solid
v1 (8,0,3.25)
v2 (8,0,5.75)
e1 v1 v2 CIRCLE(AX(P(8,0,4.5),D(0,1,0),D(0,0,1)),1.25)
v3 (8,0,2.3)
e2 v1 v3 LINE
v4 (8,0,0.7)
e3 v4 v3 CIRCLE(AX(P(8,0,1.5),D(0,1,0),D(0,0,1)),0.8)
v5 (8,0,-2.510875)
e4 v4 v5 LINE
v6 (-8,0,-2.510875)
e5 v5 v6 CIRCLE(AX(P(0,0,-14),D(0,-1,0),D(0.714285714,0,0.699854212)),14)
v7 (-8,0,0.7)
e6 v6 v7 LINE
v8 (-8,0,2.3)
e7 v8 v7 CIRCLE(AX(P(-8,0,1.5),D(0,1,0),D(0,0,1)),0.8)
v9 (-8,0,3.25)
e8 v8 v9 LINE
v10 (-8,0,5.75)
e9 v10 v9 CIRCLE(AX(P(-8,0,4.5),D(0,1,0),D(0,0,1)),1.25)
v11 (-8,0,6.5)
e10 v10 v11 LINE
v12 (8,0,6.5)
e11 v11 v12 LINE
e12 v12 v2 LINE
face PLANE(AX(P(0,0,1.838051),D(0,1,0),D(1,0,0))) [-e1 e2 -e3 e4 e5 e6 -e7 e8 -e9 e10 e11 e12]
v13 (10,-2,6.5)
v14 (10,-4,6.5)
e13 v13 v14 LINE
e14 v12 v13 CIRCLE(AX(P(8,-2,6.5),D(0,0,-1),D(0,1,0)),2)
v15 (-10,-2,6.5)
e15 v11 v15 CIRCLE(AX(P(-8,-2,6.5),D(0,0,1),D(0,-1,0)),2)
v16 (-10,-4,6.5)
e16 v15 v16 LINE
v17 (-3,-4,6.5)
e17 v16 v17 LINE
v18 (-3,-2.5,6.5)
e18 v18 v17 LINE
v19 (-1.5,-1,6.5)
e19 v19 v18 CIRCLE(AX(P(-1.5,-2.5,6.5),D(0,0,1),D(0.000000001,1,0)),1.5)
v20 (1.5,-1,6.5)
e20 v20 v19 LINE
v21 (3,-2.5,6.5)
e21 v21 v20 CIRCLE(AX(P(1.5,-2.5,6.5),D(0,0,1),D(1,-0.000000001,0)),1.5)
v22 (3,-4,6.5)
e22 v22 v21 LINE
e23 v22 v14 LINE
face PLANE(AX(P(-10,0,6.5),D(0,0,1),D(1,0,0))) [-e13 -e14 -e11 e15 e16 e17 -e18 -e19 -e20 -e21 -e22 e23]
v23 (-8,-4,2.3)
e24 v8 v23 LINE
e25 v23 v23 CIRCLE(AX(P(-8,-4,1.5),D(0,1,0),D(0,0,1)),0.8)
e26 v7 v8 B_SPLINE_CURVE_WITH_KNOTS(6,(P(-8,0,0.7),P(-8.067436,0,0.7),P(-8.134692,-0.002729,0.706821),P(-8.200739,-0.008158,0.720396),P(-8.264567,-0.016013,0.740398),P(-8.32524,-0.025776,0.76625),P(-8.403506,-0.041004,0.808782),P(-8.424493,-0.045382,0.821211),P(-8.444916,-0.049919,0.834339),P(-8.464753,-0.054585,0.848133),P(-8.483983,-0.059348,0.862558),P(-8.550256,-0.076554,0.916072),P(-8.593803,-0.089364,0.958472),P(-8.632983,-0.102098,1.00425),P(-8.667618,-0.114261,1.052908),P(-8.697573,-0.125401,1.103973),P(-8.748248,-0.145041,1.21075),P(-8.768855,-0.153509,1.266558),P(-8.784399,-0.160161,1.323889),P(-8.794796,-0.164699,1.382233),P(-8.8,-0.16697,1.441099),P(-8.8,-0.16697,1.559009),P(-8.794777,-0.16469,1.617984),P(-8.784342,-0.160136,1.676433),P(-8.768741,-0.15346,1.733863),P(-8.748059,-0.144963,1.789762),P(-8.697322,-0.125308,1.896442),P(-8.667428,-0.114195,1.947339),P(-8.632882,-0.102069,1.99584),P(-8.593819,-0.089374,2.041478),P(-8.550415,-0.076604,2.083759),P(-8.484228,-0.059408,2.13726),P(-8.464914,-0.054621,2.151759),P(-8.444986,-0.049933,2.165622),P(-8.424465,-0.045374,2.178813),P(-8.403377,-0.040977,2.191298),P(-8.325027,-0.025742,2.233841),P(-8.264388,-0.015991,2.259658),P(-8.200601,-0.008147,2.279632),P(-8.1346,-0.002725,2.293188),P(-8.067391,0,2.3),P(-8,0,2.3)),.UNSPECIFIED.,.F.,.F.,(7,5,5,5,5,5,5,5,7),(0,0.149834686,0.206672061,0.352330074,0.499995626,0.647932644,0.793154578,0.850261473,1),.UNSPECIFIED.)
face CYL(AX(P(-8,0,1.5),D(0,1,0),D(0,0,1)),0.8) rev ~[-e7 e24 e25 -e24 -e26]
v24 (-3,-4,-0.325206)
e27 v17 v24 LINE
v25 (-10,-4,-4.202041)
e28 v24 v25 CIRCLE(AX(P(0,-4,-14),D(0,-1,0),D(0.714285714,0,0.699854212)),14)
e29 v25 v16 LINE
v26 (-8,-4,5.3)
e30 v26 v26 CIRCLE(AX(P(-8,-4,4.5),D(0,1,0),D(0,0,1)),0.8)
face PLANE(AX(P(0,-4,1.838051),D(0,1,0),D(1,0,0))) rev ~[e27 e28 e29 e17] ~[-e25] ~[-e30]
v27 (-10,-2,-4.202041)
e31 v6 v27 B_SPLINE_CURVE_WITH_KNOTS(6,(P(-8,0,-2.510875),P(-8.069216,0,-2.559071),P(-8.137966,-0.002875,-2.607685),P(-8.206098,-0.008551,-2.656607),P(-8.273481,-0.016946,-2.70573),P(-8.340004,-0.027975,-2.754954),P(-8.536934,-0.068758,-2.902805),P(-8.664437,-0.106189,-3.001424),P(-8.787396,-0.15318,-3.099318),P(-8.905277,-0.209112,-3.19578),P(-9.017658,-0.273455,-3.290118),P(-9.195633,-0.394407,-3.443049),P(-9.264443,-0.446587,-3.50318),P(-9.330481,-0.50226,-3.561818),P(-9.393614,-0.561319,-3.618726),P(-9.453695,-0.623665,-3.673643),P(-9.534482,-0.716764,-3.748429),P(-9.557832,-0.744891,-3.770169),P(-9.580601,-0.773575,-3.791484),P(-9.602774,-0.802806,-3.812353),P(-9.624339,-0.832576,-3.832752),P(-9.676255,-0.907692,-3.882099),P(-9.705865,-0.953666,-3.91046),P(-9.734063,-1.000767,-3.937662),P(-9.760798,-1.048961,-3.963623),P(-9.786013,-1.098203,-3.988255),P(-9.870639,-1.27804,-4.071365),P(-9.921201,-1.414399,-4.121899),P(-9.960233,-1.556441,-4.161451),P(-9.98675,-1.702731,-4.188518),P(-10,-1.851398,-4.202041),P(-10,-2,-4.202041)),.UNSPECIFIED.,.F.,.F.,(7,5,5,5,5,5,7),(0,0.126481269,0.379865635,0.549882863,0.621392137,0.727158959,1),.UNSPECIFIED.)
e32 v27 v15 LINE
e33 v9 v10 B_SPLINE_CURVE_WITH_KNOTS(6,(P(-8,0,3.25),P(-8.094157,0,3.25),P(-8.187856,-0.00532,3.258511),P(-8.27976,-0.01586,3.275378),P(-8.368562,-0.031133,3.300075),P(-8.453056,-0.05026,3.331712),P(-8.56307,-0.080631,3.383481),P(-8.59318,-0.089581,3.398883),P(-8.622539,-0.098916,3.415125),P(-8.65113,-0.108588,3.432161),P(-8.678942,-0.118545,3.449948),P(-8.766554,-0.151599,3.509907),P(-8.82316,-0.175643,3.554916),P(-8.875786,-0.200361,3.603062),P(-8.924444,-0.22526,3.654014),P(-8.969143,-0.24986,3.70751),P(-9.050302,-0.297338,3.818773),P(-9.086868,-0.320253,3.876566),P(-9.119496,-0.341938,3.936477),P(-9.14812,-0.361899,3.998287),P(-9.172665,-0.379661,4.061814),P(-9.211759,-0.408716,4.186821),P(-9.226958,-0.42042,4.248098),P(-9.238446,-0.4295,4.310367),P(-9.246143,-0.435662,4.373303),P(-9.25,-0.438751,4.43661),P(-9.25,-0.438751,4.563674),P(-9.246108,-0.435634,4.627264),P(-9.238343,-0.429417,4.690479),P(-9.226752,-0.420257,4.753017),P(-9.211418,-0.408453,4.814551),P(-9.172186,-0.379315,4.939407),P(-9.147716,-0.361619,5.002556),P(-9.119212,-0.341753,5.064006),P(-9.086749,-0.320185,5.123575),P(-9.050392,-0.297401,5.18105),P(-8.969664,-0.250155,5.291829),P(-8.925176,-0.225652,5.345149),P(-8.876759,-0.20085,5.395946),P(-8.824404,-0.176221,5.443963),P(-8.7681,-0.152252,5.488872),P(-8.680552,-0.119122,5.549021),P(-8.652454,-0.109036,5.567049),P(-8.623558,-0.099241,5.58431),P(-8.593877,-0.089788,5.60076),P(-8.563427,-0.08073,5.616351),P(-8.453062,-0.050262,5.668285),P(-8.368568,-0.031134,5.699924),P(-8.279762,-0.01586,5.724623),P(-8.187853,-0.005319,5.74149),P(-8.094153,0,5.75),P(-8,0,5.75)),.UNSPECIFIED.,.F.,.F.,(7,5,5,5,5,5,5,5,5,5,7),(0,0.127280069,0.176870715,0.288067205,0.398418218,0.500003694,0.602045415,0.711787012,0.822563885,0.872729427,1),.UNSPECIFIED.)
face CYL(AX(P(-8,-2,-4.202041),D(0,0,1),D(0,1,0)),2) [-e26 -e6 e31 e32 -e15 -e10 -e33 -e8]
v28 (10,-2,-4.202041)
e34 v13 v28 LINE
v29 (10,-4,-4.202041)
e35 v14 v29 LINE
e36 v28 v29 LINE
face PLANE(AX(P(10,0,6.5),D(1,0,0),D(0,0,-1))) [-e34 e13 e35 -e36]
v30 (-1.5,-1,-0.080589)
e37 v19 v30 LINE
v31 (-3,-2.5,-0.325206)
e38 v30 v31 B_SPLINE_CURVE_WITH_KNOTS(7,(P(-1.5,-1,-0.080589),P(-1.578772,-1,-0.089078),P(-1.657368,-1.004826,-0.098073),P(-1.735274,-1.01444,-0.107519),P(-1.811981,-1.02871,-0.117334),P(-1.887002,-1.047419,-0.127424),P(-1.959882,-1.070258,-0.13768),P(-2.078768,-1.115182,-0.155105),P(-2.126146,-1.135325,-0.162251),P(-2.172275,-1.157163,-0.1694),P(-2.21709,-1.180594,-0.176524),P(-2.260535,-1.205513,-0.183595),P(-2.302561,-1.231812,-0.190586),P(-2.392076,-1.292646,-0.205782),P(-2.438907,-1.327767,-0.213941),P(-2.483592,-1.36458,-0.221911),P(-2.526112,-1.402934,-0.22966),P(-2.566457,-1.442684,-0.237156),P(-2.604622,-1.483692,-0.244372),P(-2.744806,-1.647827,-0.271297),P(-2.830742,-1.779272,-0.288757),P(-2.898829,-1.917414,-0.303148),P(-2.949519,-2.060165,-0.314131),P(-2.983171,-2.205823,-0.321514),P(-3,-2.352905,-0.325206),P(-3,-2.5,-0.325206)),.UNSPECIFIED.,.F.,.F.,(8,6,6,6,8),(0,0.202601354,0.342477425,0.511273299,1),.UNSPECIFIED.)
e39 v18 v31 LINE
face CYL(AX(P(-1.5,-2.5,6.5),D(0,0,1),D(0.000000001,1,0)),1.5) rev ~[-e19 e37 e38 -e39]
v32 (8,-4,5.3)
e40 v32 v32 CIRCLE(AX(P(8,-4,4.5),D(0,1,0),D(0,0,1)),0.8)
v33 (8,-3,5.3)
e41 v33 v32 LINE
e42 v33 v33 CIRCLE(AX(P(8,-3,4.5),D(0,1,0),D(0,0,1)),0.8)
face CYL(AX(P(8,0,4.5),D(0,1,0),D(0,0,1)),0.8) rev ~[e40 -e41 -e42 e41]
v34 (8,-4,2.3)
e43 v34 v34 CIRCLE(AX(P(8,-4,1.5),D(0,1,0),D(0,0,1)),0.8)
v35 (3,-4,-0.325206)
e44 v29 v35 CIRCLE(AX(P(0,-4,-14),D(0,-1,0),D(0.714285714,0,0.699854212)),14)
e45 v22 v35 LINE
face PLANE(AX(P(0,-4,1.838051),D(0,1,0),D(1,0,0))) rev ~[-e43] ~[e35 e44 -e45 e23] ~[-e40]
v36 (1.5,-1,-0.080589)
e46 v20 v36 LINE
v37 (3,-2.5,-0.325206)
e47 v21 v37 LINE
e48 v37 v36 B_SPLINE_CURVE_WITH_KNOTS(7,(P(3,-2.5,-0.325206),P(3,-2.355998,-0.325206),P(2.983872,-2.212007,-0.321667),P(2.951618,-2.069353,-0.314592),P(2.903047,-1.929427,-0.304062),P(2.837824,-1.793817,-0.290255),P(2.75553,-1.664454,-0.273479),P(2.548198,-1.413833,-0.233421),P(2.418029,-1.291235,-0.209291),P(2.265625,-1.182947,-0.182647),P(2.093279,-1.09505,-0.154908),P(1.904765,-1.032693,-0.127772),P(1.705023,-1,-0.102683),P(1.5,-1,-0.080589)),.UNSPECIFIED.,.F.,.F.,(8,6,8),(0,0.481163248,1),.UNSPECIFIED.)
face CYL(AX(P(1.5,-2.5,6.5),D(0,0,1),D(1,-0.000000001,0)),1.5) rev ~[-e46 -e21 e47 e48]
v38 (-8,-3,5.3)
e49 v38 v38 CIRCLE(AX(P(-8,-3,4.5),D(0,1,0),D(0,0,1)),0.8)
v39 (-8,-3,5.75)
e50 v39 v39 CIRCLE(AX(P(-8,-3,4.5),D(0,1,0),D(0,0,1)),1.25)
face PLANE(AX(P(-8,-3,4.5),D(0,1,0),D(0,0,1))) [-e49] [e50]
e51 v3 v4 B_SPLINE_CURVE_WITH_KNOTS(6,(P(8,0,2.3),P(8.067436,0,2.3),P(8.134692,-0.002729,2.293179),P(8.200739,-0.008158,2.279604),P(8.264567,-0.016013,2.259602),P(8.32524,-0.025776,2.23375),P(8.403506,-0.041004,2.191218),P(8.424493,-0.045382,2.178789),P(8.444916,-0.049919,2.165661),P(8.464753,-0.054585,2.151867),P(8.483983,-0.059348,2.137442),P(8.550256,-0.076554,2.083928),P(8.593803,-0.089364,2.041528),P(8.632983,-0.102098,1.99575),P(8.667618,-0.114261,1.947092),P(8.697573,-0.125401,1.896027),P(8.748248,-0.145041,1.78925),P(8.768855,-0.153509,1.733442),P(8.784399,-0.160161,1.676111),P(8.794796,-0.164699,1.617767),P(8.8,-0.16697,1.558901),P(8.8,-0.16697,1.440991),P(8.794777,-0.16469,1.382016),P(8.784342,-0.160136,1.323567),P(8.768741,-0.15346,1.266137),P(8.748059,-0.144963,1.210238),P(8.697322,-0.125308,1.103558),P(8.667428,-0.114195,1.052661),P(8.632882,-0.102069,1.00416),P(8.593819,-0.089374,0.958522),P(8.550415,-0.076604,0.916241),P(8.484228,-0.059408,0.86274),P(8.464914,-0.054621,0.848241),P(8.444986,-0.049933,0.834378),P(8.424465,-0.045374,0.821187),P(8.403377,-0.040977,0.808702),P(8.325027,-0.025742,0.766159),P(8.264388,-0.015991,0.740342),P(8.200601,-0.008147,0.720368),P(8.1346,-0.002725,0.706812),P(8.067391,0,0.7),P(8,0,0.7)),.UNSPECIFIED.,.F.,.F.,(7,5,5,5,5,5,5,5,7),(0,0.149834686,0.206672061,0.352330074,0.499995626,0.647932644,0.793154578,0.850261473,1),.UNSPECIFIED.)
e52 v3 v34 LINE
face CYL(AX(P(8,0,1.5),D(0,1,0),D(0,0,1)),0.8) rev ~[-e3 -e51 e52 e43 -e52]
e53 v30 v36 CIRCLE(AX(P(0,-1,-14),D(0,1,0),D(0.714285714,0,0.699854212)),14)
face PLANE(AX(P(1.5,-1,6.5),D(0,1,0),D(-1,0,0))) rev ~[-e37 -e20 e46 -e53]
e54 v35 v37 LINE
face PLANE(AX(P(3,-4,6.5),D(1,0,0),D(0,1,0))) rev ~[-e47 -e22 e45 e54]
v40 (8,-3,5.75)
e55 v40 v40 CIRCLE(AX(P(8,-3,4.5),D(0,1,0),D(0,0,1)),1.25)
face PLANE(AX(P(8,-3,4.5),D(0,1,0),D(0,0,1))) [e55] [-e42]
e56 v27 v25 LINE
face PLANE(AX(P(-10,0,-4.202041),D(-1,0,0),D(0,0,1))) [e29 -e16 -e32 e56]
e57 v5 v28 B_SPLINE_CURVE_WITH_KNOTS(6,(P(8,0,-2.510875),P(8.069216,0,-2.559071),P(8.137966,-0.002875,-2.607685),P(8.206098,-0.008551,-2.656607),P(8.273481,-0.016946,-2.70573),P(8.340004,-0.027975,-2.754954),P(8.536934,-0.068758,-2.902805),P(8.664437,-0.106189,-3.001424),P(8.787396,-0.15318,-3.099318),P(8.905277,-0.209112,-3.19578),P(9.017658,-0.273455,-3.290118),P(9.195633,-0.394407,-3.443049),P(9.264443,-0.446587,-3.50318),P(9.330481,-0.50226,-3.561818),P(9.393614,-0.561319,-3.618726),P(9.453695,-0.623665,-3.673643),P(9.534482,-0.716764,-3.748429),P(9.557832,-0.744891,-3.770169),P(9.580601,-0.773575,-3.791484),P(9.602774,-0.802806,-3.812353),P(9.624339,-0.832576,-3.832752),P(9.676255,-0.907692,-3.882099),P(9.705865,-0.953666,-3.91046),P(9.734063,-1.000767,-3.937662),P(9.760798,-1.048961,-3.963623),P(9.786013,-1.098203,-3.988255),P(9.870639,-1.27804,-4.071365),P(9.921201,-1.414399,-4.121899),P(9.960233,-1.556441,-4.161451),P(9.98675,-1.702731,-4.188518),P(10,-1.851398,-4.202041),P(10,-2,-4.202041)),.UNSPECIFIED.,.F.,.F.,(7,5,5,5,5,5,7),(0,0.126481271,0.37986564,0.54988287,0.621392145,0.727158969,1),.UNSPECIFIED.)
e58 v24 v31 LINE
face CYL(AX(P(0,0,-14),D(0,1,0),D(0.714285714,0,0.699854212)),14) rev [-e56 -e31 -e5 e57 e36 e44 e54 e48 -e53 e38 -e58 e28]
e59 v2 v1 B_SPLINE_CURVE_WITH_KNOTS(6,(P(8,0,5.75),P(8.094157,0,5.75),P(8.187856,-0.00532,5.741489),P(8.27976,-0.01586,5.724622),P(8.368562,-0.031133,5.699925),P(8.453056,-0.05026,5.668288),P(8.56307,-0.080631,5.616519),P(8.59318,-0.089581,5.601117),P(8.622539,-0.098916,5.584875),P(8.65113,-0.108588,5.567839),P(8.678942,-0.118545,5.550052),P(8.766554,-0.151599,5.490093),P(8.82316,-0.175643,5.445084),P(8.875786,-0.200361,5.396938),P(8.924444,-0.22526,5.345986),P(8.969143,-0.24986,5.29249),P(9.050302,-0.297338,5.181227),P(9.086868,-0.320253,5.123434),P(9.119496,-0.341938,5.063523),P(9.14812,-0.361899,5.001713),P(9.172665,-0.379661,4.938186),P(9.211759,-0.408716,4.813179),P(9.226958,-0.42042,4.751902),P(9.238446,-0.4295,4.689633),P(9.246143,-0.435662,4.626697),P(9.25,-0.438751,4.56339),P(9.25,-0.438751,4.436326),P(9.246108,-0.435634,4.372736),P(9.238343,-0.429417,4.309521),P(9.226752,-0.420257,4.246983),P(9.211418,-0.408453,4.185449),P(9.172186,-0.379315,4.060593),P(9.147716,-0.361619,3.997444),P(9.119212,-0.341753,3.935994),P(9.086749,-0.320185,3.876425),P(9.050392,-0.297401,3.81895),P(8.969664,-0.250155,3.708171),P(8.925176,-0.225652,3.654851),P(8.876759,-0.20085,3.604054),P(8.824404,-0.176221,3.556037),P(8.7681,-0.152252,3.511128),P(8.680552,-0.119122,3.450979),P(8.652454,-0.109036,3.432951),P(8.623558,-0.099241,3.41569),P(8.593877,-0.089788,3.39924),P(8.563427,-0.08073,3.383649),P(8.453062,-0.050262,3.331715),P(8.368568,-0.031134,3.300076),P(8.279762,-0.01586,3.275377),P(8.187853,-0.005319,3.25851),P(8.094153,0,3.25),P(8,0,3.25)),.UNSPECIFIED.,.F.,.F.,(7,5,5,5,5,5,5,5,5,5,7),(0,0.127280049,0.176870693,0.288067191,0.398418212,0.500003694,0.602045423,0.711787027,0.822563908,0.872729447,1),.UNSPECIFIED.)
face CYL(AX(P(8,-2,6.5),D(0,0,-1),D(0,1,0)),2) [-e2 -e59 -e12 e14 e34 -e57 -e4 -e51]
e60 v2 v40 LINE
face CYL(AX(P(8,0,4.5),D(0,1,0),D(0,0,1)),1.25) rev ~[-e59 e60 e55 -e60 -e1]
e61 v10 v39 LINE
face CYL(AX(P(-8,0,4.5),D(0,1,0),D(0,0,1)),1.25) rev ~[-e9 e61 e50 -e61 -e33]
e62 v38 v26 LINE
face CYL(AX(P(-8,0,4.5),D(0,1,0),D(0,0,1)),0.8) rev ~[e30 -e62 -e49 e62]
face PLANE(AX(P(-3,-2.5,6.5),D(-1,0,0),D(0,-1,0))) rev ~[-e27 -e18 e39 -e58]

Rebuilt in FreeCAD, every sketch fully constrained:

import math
import FreeCAD as App
import Part
import Sketcher


def edges_at(feature, points):
    """Names of the edges that pass closest to the given points."""
    edges = feature.Shape.Edges
    near = lambda p: min(range(len(edges)), key=lambda i: edges[i].distToShape(Part.Vertex(*p))[0])
    return sorted({f"Edge{near(p) + 1}" for p in points})

doc = App.newDocument("Part")
body = doc.addObject("PartDesign::Body", "Body")

# Sketch on XZ plane
sketch1 = body.newObject("Sketcher::SketchObject", "Sketch")
sketch1.AttachmentSupport = (doc.getObject("XZ_Plane"), [""])
sketch1.MapMode = "FlatFace"
sketch1.addGeometry([
    Part.LineSegment(App.Vector(-10, 6, 0), App.Vector(10, 6, 0)),
    Part.LineSegment(App.Vector(10, 6, 0), App.Vector(10, -4, 0)),
    Part.ArcOfCircle(Part.Circle(App.Vector(0, -14, 0), App.Vector(0, 0, 1), 14), math.radians(44), math.radians(136)),
    Part.LineSegment(App.Vector(-10, -4, 0), App.Vector(-10, 6, 0)),
], False)
sketch1.addConstraint([
    Sketcher.Constraint("Coincident", 0, 2, 1, 1),
    Sketcher.Constraint("Coincident", 1, 2, 2, 1),
    Sketcher.Constraint("Coincident", 2, 2, 3, 1),
    Sketcher.Constraint("Coincident", 3, 2, 0, 1),
    Sketcher.Constraint("Horizontal", 0),
    Sketcher.Constraint("Vertical", 1),
    Sketcher.Constraint("Vertical", 3),
    Sketcher.Constraint("Symmetric", 1, 2, 2, 2, -2),
    Sketcher.Constraint("Radius", 2, 14.0),
    Sketcher.Constraint("DistanceX", 0, 1, 0, 2, 20.0),
    Sketcher.Constraint("DistanceY", 2, 3, -1, 1, 14.0),
    Sketcher.Constraint("DistanceY", -1, 1, 0, 2, 6.5),
])
pad1 = body.newObject("PartDesign::Pad", "Pad")
pad1.Profile = sketch1
pad1.Length = 4

# Sketch on XY plane
sketch2 = body.newObject("Sketcher::SketchObject", "Sketch001")
sketch2.AttachmentSupport = (doc.getObject("XY_Plane"), [""])
sketch2.MapMode = "FlatFace"
sketch2.AttachmentOffset = App.Placement(App.Vector(0, 0, 6.5), App.Rotation())
sketch2.addGeometry([
    Part.LineSegment(App.Vector(3, -4, 0), App.Vector(3, -2.5, 0)),  # 0
    Part.ArcOfCircle(Part.Circle(App.Vector(1.5, -2.5, 0), App.Vector(0, 0, 1), 1.5), math.radians(0), math.radians(90)),  # 1
    Part.LineSegment(App.Vector(1.5, -1, 0), App.Vector(-1.5, -1, 0)),  # 2
    Part.ArcOfCircle(Part.Circle(App.Vector(-1.5, -2.5, 0), App.Vector(0, 0, 1), 1.5), math.radians(90), math.radians(180)),  # 3
    Part.LineSegment(App.Vector(-3, -2.5, 0), App.Vector(-3, -4, 0)),  # 4
    Part.LineSegment(App.Vector(-3, -4, 0), App.Vector(3, -4, 0)),  # 5
], False)
sketch2.addConstraint([
    Sketcher.Constraint("Tangent", 0, 2, 1, 1),
    Sketcher.Constraint("Tangent", 1, 2, 2, 1),
    Sketcher.Constraint("Tangent", 2, 2, 3, 1),
    Sketcher.Constraint("Tangent", 3, 2, 4, 1),
    Sketcher.Constraint("Coincident", 4, 2, 5, 1),
    Sketcher.Constraint("Coincident", 5, 2, 0, 1),
    Sketcher.Constraint("Vertical", 0),
    Sketcher.Constraint("Horizontal", 2),
    Sketcher.Constraint("Vertical", 4),
    Sketcher.Constraint("Horizontal", 5),
    Sketcher.Constraint("Equal", 1, 3),
    Sketcher.Constraint("Radius", 1, 1.5),
    Sketcher.Constraint("DistanceX", 2, 2, 2, 1, 3.0),
    Sketcher.Constraint("DistanceY", 0, 1, 0, 2, 1.5),
    Sketcher.Constraint("DistanceX", -1, 1, 0, 2, 3.0),
    Sketcher.Constraint("DistanceY", 1, 2, -1, 1, 1.0),
])
pocket1 = body.newObject("PartDesign::Pocket", "Pocket")
pocket1.Profile = sketch2
pocket1.Type = "ThroughAll"
doc.recompute()

fillet = body.newObject("PartDesign::Fillet", "Fillet")
fillet.Base = (pocket1, edges_at(pocket1, [(10, 0, 1.149), (-10, 0, 1.149)]))
fillet.Radius = 2

# Sketch on XZ plane
sketch3 = body.newObject("Sketcher::SketchObject", "Sketch002")
sketch3.AttachmentSupport = (doc.getObject("XZ_Plane"), [""])
sketch3.MapMode = "FlatFace"
sketch3.addGeometry([
    Part.Circle(App.Vector(-8, 1.5, 0), App.Vector(0, 0, 1), 0.8),
    Part.Circle(App.Vector(8, 1.5, 0), App.Vector(0, 0, 1), 0.8),
    Part.Circle(App.Vector(8, 4.5, 0), App.Vector(0, 0, 1), 0.8),
    Part.Circle(App.Vector(-8, 4.5, 0), App.Vector(0, 0, 1), 0.8),
], False)
sketch3.addConstraint([
    Sketcher.Constraint("Equal", 0, 1),
    Sketcher.Constraint("Equal", 1, 2),
    Sketcher.Constraint("Equal", 2, 3),
    Sketcher.Constraint("Symmetric", 0, 3, 1, 3, -2),
    Sketcher.Constraint("Symmetric", 2, 3, 3, 3, -2),
    Sketcher.Constraint("Vertical", 1, 3, 2, 3),
    Sketcher.Constraint("Diameter", 0, 1.6),
    Sketcher.Constraint("DistanceX", 0, 3, -1, 1, 8.0),
    Sketcher.Constraint("DistanceY", 1, 3, 2, 3, 3.0),
    Sketcher.Constraint("DistanceY", -1, 1, 0, 3, 1.5),
])
pocket2 = body.newObject("PartDesign::Pocket", "Pocket001")
pocket2.Profile = sketch3
pocket2.Type = "ThroughAll"
pocket2.Reversed = True

# Sketch on XZ plane
sketch4 = body.newObject("Sketcher::SketchObject", "Sketch003")
sketch4.AttachmentSupport = (doc.getObject("XZ_Plane"), [""])
sketch4.MapMode = "FlatFace"
sketch4.addGeometry([
    Part.Circle(App.Vector(-8, 4.5, 0), App.Vector(0, 0, 1), 1.2),
    Part.Circle(App.Vector(8, 4.5, 0), App.Vector(0, 0, 1), 1.2),
], False)
sketch4.addConstraint([
    Sketcher.Constraint("Equal", 0, 1),
    Sketcher.Constraint("Symmetric", 0, 3, 1, 3, -2),
    Sketcher.Constraint("Diameter", 0, 2.5),
    Sketcher.Constraint("DistanceX", 0, 3, -1, 1, 8.0),
    Sketcher.Constraint("DistanceY", -1, 1, 0, 3, 4.5),
])
pocket3 = body.newObject("PartDesign::Pocket", "Pocket002")
pocket3.Profile = sketch4
pocket3.Length = 3
pocket3.Reversed = True

doc.recompute()
